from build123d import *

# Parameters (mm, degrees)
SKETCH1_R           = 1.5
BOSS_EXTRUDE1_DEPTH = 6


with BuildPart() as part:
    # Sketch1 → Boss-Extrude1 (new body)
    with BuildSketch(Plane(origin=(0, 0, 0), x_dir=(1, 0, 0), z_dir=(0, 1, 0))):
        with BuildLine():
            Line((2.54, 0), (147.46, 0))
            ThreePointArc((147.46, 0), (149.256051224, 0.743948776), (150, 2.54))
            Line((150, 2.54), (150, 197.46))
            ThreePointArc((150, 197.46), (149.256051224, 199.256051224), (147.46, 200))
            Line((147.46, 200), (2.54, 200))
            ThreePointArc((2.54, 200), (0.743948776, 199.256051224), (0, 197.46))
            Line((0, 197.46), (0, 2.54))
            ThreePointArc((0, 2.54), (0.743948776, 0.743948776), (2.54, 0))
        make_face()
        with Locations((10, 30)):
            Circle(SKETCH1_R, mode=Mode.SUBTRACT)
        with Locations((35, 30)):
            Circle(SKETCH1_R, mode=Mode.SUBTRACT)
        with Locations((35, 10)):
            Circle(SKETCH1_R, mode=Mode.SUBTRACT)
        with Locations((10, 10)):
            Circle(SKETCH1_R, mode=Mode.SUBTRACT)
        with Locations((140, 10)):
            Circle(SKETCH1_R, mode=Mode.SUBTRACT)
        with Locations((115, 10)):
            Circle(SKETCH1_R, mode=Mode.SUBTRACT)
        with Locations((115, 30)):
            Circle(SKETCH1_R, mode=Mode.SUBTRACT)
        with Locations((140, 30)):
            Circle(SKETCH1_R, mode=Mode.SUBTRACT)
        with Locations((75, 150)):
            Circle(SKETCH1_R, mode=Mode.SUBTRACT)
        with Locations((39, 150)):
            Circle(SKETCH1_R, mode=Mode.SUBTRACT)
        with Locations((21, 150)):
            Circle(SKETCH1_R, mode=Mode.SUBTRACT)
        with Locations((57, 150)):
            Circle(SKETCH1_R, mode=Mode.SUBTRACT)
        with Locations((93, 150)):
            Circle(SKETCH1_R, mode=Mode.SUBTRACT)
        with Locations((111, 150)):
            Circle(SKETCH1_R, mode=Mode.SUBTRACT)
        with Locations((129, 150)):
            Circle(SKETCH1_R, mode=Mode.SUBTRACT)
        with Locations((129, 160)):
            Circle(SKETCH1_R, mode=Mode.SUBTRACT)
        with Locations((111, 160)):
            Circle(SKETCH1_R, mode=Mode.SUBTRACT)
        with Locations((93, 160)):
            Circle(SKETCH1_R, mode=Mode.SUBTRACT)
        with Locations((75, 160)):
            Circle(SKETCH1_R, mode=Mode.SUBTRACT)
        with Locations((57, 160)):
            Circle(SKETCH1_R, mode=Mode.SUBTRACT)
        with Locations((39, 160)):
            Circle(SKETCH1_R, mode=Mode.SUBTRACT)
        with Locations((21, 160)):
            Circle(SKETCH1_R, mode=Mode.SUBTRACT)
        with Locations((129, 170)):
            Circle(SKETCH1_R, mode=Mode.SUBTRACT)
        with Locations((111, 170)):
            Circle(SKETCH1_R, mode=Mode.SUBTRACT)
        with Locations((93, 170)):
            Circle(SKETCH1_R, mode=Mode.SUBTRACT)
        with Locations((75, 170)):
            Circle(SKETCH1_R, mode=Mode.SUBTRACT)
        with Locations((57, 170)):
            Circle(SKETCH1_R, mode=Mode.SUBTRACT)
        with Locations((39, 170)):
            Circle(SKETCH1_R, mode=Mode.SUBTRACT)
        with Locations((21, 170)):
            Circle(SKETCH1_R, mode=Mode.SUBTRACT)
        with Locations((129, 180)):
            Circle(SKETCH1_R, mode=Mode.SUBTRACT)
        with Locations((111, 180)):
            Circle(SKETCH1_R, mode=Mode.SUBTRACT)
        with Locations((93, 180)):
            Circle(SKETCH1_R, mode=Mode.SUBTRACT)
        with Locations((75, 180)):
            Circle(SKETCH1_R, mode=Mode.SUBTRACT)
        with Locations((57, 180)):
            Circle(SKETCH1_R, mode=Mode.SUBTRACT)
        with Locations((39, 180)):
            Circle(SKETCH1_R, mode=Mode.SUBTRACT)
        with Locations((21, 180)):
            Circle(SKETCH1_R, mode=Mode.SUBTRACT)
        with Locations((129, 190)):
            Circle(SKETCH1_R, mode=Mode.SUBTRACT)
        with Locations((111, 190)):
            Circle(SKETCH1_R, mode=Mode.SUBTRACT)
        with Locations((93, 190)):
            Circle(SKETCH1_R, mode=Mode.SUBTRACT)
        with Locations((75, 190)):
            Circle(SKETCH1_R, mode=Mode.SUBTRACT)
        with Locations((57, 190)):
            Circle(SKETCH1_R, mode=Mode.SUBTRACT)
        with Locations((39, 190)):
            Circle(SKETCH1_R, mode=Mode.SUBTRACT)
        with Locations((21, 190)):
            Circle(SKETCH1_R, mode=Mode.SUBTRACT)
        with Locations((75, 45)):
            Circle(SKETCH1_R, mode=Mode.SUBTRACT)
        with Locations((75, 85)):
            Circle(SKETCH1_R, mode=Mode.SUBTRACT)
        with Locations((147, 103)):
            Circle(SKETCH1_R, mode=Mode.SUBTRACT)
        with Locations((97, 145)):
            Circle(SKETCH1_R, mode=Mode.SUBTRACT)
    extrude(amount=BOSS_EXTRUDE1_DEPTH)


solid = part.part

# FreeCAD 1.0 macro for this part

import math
import FreeCAD as App
import Part
import Sketcher
Q = App.Units.Quantity

doc = App.newDocument("Part")
body = doc.addObject("PartDesign::Body", "Body")

# Sketch on XZ plane
sketch1 = body.newObject("Sketcher::SketchObject", "Sketch")
sketch1.AttachmentSupport = (doc.getObject("XZ_Plane"), [""])
sketch1.MapMode = "FlatFace"
sketch1.addGeometry(Part.LineSegment(App.Vector(2.5, 0, 0), App.Vector(147.5, 0, 0)), False)
sketch1.addGeometry(Part.ArcOfCircle(Part.Circle(App.Vector(147.5, -2.5, 0), App.Vector(0, 0, 1), 2.5), math.radians(0), math.radians(90)), False)
sketch1.addGeometry(Part.LineSegment(App.Vector(150, -2.5, 0), App.Vector(150, -197.5, 0)), False)
sketch1.addGeometry(Part.ArcOfCircle(Part.Circle(App.Vector(147.5, -197.5, 0), App.Vector(0, 0, 1), 2.5), math.radians(-90), math.radians(0)), False)
sketch1.addGeometry(Part.LineSegment(App.Vector(147.5, -200, 0), App.Vector(2.5, -200, 0)), False)
sketch1.addGeometry(Part.ArcOfCircle(Part.Circle(App.Vector(2.5, -197.5, 0), App.Vector(0, 0, 1), 2.5), math.radians(-180), math.radians(-90)), False)
sketch1.addGeometry(Part.LineSegment(App.Vector(0, -197.5, 0), App.Vector(0, -2.5, 0)), False)
sketch1.addGeometry(Part.ArcOfCircle(Part.Circle(App.Vector(2.5, -2.5, 0), App.Vector(0, 0, 1), 2.5), math.radians(90), math.radians(180)), False)
sketch1.addGeometry(Part.Circle(App.Vector(10, -10, 0), App.Vector(0, 0, 1), 1.5), False)
sketch1.addGeometry(Part.Circle(App.Vector(10, -30, 0), App.Vector(0, 0, 1), 1.5), False)
sketch1.addGeometry(Part.Circle(App.Vector(35, -10, 0), App.Vector(0, 0, 1), 1.5), False)
sketch1.addGeometry(Part.Circle(App.Vector(35, -30, 0), App.Vector(0, 0, 1), 1.5), False)
sketch1.addGeometry(Part.Circle(App.Vector(75, -45, 0), App.Vector(0, 0, 1), 1.5), False)
sketch1.addGeometry(Part.Circle(App.Vector(75, -85, 0), App.Vector(0, 0, 1), 1.5), False)
sketch1.addGeometry(Part.Circle(App.Vector(115, -10, 0), App.Vector(0, 0, 1), 1.5), False)
sketch1.addGeometry(Part.Circle(App.Vector(115, -30, 0), App.Vector(0, 0, 1), 1.5), False)
sketch1.addGeometry(Part.Circle(App.Vector(140, -10, 0), App.Vector(0, 0, 1), 1.5), False)
sketch1.addGeometry(Part.Circle(App.Vector(140, -30, 0), App.Vector(0, 0, 1), 1.5), False)
sketch1.addGeometry(Part.Circle(App.Vector(21, -150, 0), App.Vector(0, 0, 1), 1.5), False)
sketch1.addGeometry(Part.Circle(App.Vector(21, -160, 0), App.Vector(0, 0, 1), 1.5), False)
sketch1.addGeometry(Part.Circle(App.Vector(39, -150, 0), App.Vector(0, 0, 1), 1.5), False)
sketch1.addGeometry(Part.Circle(App.Vector(39, -160, 0), App.Vector(0, 0, 1), 1.5), False)
sketch1.addGeometry(Part.Circle(App.Vector(21, -170, 0), App.Vector(0, 0, 1), 1.5), False)
sketch1.addGeometry(Part.Circle(App.Vector(21, -180, 0), App.Vector(0, 0, 1), 1.5), False)
sketch1.addGeometry(Part.Circle(App.Vector(21, -190, 0), App.Vector(0, 0, 1), 1.5), False)
sketch1.addGeometry(Part.Circle(App.Vector(39, -170, 0), App.Vector(0, 0, 1), 1.5), False)
sketch1.addGeometry(Part.Circle(App.Vector(39, -180, 0), App.Vector(0, 0, 1), 1.5), False)
sketch1.addGeometry(Part.Circle(App.Vector(39, -190, 0), App.Vector(0, 0, 1), 1.5), False)
sketch1.addGeometry(Part.Circle(App.Vector(57, -150, 0), App.Vector(0, 0, 1), 1.5), False)
sketch1.addGeometry(Part.Circle(App.Vector(57, -160, 0), App.Vector(0, 0, 1), 1.5), False)
sketch1.addGeometry(Part.Circle(App.Vector(75, -150, 0), App.Vector(0, 0, 1), 1.5), False)
sketch1.addGeometry(Part.Circle(App.Vector(75, -160, 0), App.Vector(0, 0, 1), 1.5), False)
sketch1.addGeometry(Part.Circle(App.Vector(57, -170, 0), App.Vector(0, 0, 1), 1.5), False)
sketch1.addGeometry(Part.Circle(App.Vector(57, -180, 0), App.Vector(0, 0, 1), 1.5), False)
sketch1.addGeometry(Part.Circle(App.Vector(57, -190, 0), App.Vector(0, 0, 1), 1.5), False)
sketch1.addGeometry(Part.Circle(App.Vector(75, -170, 0), App.Vector(0, 0, 1), 1.5), False)
sketch1.addGeometry(Part.Circle(App.Vector(75, -180, 0), App.Vector(0, 0, 1), 1.5), False)
sketch1.addGeometry(Part.Circle(App.Vector(75, -190, 0), App.Vector(0, 0, 1), 1.5), False)
sketch1.addGeometry(Part.Circle(App.Vector(97, -145, 0), App.Vector(0, 0, 1), 1.5), False)
sketch1.addGeometry(Part.Circle(App.Vector(147, -103, 0), App.Vector(0, 0, 1), 1.5), False)
sketch1.addGeometry(Part.Circle(App.Vector(93, -150, 0), App.Vector(0, 0, 1), 1.5), False)
sketch1.addGeometry(Part.Circle(App.Vector(93, -160, 0), App.Vector(0, 0, 1), 1.5), False)
sketch1.addGeometry(Part.Circle(App.Vector(111, -150, 0), App.Vector(0, 0, 1), 1.5), False)
sketch1.addGeometry(Part.Circle(App.Vector(111, -160, 0), App.Vector(0, 0, 1), 1.5), False)
sketch1.addGeometry(Part.Circle(App.Vector(93, -170, 0), App.Vector(0, 0, 1), 1.5), False)
sketch1.addGeometry(Part.Circle(App.Vector(93, -180, 0), App.Vector(0, 0, 1), 1.5), False)
sketch1.addGeometry(Part.Circle(App.Vector(93, -190, 0), App.Vector(0, 0, 1), 1.5), False)
sketch1.addGeometry(Part.Circle(App.Vector(111, -170, 0), App.Vector(0, 0, 1), 1.5), False)
sketch1.addGeometry(Part.Circle(App.Vector(111, -180, 0), App.Vector(0, 0, 1), 1.5), False)
sketch1.addGeometry(Part.Circle(App.Vector(111, -190, 0), App.Vector(0, 0, 1), 1.5), False)
sketch1.addGeometry(Part.Circle(App.Vector(129, -150, 0), App.Vector(0, 0, 1), 1.5), False)
sketch1.addGeometry(Part.Circle(App.Vector(129, -160, 0), App.Vector(0, 0, 1), 1.5), False)
sketch1.addGeometry(Part.Circle(App.Vector(129, -170, 0), App.Vector(0, 0, 1), 1.5), False)
sketch1.addGeometry(Part.Circle(App.Vector(129, -180, 0), App.Vector(0, 0, 1), 1.5), False)
sketch1.addGeometry(Part.Circle(App.Vector(129, -190, 0), App.Vector(0, 0, 1), 1.5), False)
sketch1.addConstraint(Sketcher.Constraint("Tangent", 0, 2, 1, 2))
sketch1.addConstraint(Sketcher.Constraint("Tangent", 1, 1, 2, 1))
sketch1.addConstraint(Sketcher.Constraint("Tangent", 2, 2, 3, 2))
sketch1.addConstraint(Sketcher.Constraint("Tangent", 3, 1, 4, 1))
sketch1.addConstraint(Sketcher.Constraint("Tangent", 4, 2, 5, 2))
sketch1.addConstraint(Sketcher.Constraint("Tangent", 5, 1, 6, 1))
sketch1.addConstraint(Sketcher.Constraint("Tangent", 6, 2, 7, 2))
sketch1.addConstraint(Sketcher.Constraint("Tangent", 7, 1, 0, 1))
sketch1.addConstraint(Sketcher.Constraint("Horizontal", 0))
sketch1.addConstraint(Sketcher.Constraint("Vertical", 2))
sketch1.addConstraint(Sketcher.Constraint("Horizontal", 4))
sketch1.addConstraint(Sketcher.Constraint("Vertical", 6))
sketch1.addConstraint(Sketcher.Constraint("Equal", 1, 3))
sketch1.addConstraint(Sketcher.Constraint("Equal", 3, 5))
sketch1.addConstraint(Sketcher.Constraint("Equal", 5, 7))
sketch1.addConstraint(Sketcher.Constraint("Equal", 8, 9))
sketch1.addConstraint(Sketcher.Constraint("Equal", 9, 10))
sketch1.addConstraint(Sketcher.Constraint("Equal", 10, 11))
sketch1.addConstraint(Sketcher.Constraint("Equal", 11, 12))
sketch1.addConstraint(Sketcher.Constraint("Equal", 12, 13))
sketch1.addConstraint(Sketcher.Constraint("Equal", 13, 14))
sketch1.addConstraint(Sketcher.Constraint("Equal", 14, 15))
sketch1.addConstraint(Sketcher.Constraint("Equal", 15, 16))
sketch1.addConstraint(Sketcher.Constraint("Equal", 16, 17))
sketch1.addConstraint(Sketcher.Constraint("Equal", 17, 18))
sketch1.addConstraint(Sketcher.Constraint("Equal", 18, 19))
sketch1.addConstraint(Sketcher.Constraint("Equal", 19, 20))
sketch1.addConstraint(Sketcher.Constraint("Equal", 20, 21))
sketch1.addConstraint(Sketcher.Constraint("Equal", 21, 22))
sketch1.addConstraint(Sketcher.Constraint("Equal", 22, 23))
sketch1.addConstraint(Sketcher.Constraint("Equal", 23, 24))
sketch1.addConstraint(Sketcher.Constraint("Equal", 24, 25))
sketch1.addConstraint(Sketcher.Constraint("Equal", 25, 26))
sketch1.addConstraint(Sketcher.Constraint("Equal", 26, 27))
sketch1.addConstraint(Sketcher.Constraint("Equal", 27, 28))
sketch1.addConstraint(Sketcher.Constraint("Equal", 28, 29))
sketch1.addConstraint(Sketcher.Constraint("Equal", 29, 30))
sketch1.addConstraint(Sketcher.Constraint("Equal", 30, 31))
sketch1.addConstraint(Sketcher.Constraint("Equal", 31, 32))
sketch1.addConstraint(Sketcher.Constraint("Equal", 32, 33))
sketch1.addConstraint(Sketcher.Constraint("Equal", 33, 34))
sketch1.addConstraint(Sketcher.Constraint("Equal", 34, 35))
sketch1.addConstraint(Sketcher.Constraint("Equal", 35, 36))
sketch1.addConstraint(Sketcher.Constraint("Equal", 36, 37))
sketch1.addConstraint(Sketcher.Constraint("Equal", 37, 38))
sketch1.addConstraint(Sketcher.Constraint("Equal", 38, 39))
sketch1.addConstraint(Sketcher.Constraint("Equal", 39, 40))
sketch1.addConstraint(Sketcher.Constraint("Equal", 40, 41))
sketch1.addConstraint(Sketcher.Constraint("Equal", 41, 42))
sketch1.addConstraint(Sketcher.Constraint("Equal", 42, 43))
sketch1.addConstraint(Sketcher.Constraint("Equal", 43, 44))
sketch1.addConstraint(Sketcher.Constraint("Equal", 44, 45))
sketch1.addConstraint(Sketcher.Constraint("Equal", 45, 46))
sketch1.addConstraint(Sketcher.Constraint("Equal", 46, 47))
sketch1.addConstraint(Sketcher.Constraint("Equal", 47, 48))
sketch1.addConstraint(Sketcher.Constraint("Equal", 48, 49))
sketch1.addConstraint(Sketcher.Constraint("Equal", 49, 50))
sketch1.addConstraint(Sketcher.Constraint("Equal", 50, 51))
sketch1.addConstraint(Sketcher.Constraint("Equal", 51, 52))
sketch1.addConstraint(Sketcher.Constraint("Equal", 52, 53))
sketch1.addConstraint(Sketcher.Constraint("Equal", 53, 54))
sketch1.addConstraint(Sketcher.Constraint("PointOnObject", 0, 2, -1))
sketch1.addConstraint(Sketcher.Constraint("PointOnObject", 5, 1, -2))
sketch1.addConstraint(Sketcher.Constraint("Horizontal", 8, 3, 10, 3))
sketch1.addConstraint(Sketcher.Constraint("Horizontal", 9, 3, 11, 3))
sketch1.addConstraint(Sketcher.Constraint("Horizontal", 10, 3, 14, 3))
sketch1.addConstraint(Sketcher.Constraint("Horizontal", 11, 3, 15, 3))
sketch1.addConstraint(Sketcher.Constraint("Horizontal", 14, 3, 16, 3))
sketch1.addConstraint(Sketcher.Constraint("Horizontal", 15, 3, 17, 3))
sketch1.addConstraint(Sketcher.Constraint("Horizontal", 18, 3, 20, 3))
sketch1.addConstraint(Sketcher.Constraint("Horizontal", 19, 3, 21, 3))
sketch1.addConstraint(Sketcher.Constraint("Horizontal", 22, 3, 25, 3))
sketch1.addConstraint(Sketcher.Constraint("Horizontal", 23, 3, 26, 3))
sketch1.addConstraint(Sketcher.Constraint("Horizontal", 24, 3, 27, 3))
sketch1.addConstraint(Sketcher.Constraint("Horizontal", 20, 3, 28, 3))
sketch1.addConstraint(Sketcher.Constraint("Horizontal", 21, 3, 29, 3))
sketch1.addConstraint(Sketcher.Constraint("Horizontal", 28, 3, 30, 3))
sketch1.addConstraint(Sketcher.Constraint("Horizontal", 29, 3, 31, 3))
sketch1.addConstraint(Sketcher.Constraint("Horizontal", 25, 3, 32, 3))
sketch1.addConstraint(Sketcher.Constraint("Horizontal", 26, 3, 33, 3))
sketch1.addConstraint(Sketcher.Constraint("Horizontal", 27, 3, 34, 3))
sketch1.addConstraint(Sketcher.Constraint("Horizontal", 32, 3, 35, 3))
sketch1.addConstraint(Sketcher.Constraint("Horizontal", 33, 3, 36, 3))
sketch1.addConstraint(Sketcher.Constraint("Horizontal", 34, 3, 37, 3))
sketch1.addConstraint(Sketcher.Constraint("Horizontal", 30, 3, 40, 3))
sketch1.addConstraint(Sketcher.Constraint("Horizontal", 31, 3, 41, 3))
sketch1.addConstraint(Sketcher.Constraint("Horizontal", 40, 3, 42, 3))
sketch1.addConstraint(Sketcher.Constraint("Horizontal", 41, 3, 43, 3))
sketch1.addConstraint(Sketcher.Constraint("Horizontal", 35, 3, 44, 3))
sketch1.addConstraint(Sketcher.Constraint("Horizontal", 36, 3, 45, 3))
sketch1.addConstraint(Sketcher.Constraint("Horizontal", 37, 3, 46, 3))
sketch1.addConstraint(Sketcher.Constraint("Horizontal", 44, 3, 47, 3))
sketch1.addConstraint(Sketcher.Constraint("Horizontal", 45, 3, 48, 3))
sketch1.addConstraint(Sketcher.Constraint("Horizontal", 46, 3, 49, 3))
sketch1.addConstraint(Sketcher.Constraint("Horizontal", 42, 3, 50, 3))
sketch1.addConstraint(Sketcher.Constraint("Horizontal", 43, 3, 51, 3))
sketch1.addConstraint(Sketcher.Constraint("Horizontal", 47, 3, 52, 3))
sketch1.addConstraint(Sketcher.Constraint("Horizontal", 48, 3, 53, 3))
sketch1.addConstraint(Sketcher.Constraint("Horizontal", 49, 3, 54, 3))
sketch1.addConstraint(Sketcher.Constraint("Vertical", 8, 3, 9, 3))
sketch1.addConstraint(Sketcher.Constraint("Vertical", 10, 3, 11, 3))
sketch1.addConstraint(Sketcher.Constraint("Vertical", 12, 3, 13, 3))
sketch1.addConstraint(Sketcher.Constraint("Vertical", 14, 3, 15, 3))
sketch1.addConstraint(Sketcher.Constraint("Vertical", 16, 3, 17, 3))
sketch1.addConstraint(Sketcher.Constraint("Vertical", 18, 3, 19, 3))
sketch1.addConstraint(Sketcher.Constraint("Vertical", 20, 3, 21, 3))
sketch1.addConstraint(Sketcher.Constraint("Vertical", 19, 3, 22, 3))
sketch1.addConstraint(Sketcher.Constraint("Vertical", 22, 3, 23, 3))
sketch1.addConstraint(Sketcher.Constraint("Vertical", 23, 3, 24, 3))
sketch1.addConstraint(Sketcher.Constraint("Vertical", 21, 3, 25, 3))
sketch1.addConstraint(Sketcher.Constraint("Vertical", 25, 3, 26, 3))
sketch1.addConstraint(Sketcher.Constraint("Vertical", 26, 3, 27, 3))
sketch1.addConstraint(Sketcher.Constraint("Vertical", 28, 3, 29, 3))
sketch1.addConstraint(Sketcher.Constraint("Vertical", 13, 3, 30, 3))
sketch1.addConstraint(Sketcher.Constraint("Vertical", 30, 3, 31, 3))
sketch1.addConstraint(Sketcher.Constraint("Vertical", 29, 3, 32, 3))
sketch1.addConstraint(Sketcher.Constraint("Vertical", 32, 3, 33, 3))
sketch1.addConstraint(Sketcher.Constraint("Vertical", 33, 3, 34, 3))
sketch1.addConstraint(Sketcher.Constraint("Vertical", 31, 3, 35, 3))
sketch1.addConstraint(Sketcher.Constraint("Vertical", 35, 3, 36, 3))
sketch1.addConstraint(Sketcher.Constraint("Vertical", 36, 3, 37, 3))
sketch1.addConstraint(Sketcher.Constraint("Vertical", 40, 3, 41, 3))
sketch1.addConstraint(Sketcher.Constraint("Vertical", 42, 3, 43, 3))
sketch1.addConstraint(Sketcher.Constraint("Vertical", 41, 3, 44, 3))
sketch1.addConstraint(Sketcher.Constraint("Vertical", 44, 3, 45, 3))
sketch1.addConstraint(Sketcher.Constraint("Vertical", 45, 3, 46, 3))
sketch1.addConstraint(Sketcher.Constraint("Vertical", 43, 3, 47, 3))
sketch1.addConstraint(Sketcher.Constraint("Vertical", 47, 3, 48, 3))
sketch1.addConstraint(Sketcher.Constraint("Vertical", 48, 3, 49, 3))
sketch1.addConstraint(Sketcher.Constraint("Vertical", 50, 3, 51, 3))
sketch1.addConstraint(Sketcher.Constraint("Vertical", 51, 3, 52, 3))
sketch1.addConstraint(Sketcher.Constraint("Vertical", 52, 3, 53, 3))
sketch1.addConstraint(Sketcher.Constraint("Vertical", 53, 3, 54, 3))
sketch1.addConstraint(Sketcher.Constraint("Diameter", 8, Q("3 mm")))
sketch1.addConstraint(Sketcher.Constraint("Radius", 1, Q("2.54 mm")))
sketch1.addConstraint(Sketcher.Constraint("DistanceX", -1, 1, 8, 3, Q("10 mm")))
sketch1.addConstraint(Sketcher.Constraint("DistanceY", 8, 3, -1, 1, Q("10 mm")))
sketch1.addConstraint(Sketcher.Constraint("DistanceY", 9, 3, -1, 1, Q("30 mm")))
sketch1.addConstraint(Sketcher.Constraint("DistanceX", -1, 1, 10, 3, Q("35 mm")))
sketch1.addConstraint(Sketcher.Constraint("DistanceX", -1, 1, 12, 3, Q("75 mm")))
sketch1.addConstraint(Sketcher.Constraint("DistanceY", 12, 3, -1, 1, Q("45 mm")))
sketch1.addConstraint(Sketcher.Constraint("DistanceY", 13, 3, -1, 1, Q("85 mm")))
sketch1.addConstraint(Sketcher.Constraint("DistanceX", -1, 1, 14, 3, Q("115 mm")))
sketch1.addConstraint(Sketcher.Constraint("DistanceX", -1, 1, 16, 3, Q("140 mm")))
sketch1.addConstraint(Sketcher.Constraint("DistanceX", -1, 1, 18, 3, Q("21 mm")))
sketch1.addConstraint(Sketcher.Constraint("DistanceY", 18, 3, -1, 1, Q("150 mm")))
sketch1.addConstraint(Sketcher.Constraint("DistanceY", 19, 3, -1, 1, Q("160 mm")))
sketch1.addConstraint(Sketcher.Constraint("DistanceX", -1, 1, 20, 3, Q("39 mm")))
sketch1.addConstraint(Sketcher.Constraint("DistanceY", 22, 3, -1, 1, Q("170 mm")))
sketch1.addConstraint(Sketcher.Constraint("DistanceY", 23, 3, -1, 1, Q("180 mm")))
sketch1.addConstraint(Sketcher.Constraint("DistanceY", 24, 3, -1, 1, Q("190 mm")))
sketch1.addConstraint(Sketcher.Constraint("DistanceX", -1, 1, 28, 3, Q("57 mm")))
sketch1.addConstraint(Sketcher.Constraint("DistanceX", -1, 1, 38, 3, Q("97 mm")))
sketch1.addConstraint(Sketcher.Constraint("DistanceY", 38, 3, -1, 1, Q("145 mm")))
sketch1.addConstraint(Sketcher.Constraint("DistanceX", -1, 1, 39, 3, Q("147 mm")))
sketch1.addConstraint(Sketcher.Constraint("DistanceY", 39, 3, -1, 1, Q("103 mm")))
sketch1.addConstraint(Sketcher.Constraint("DistanceX", -1, 1, 40, 3, Q("93 mm")))
sketch1.addConstraint(Sketcher.Constraint("DistanceX", -1, 1, 42, 3, Q("111 mm")))
sketch1.addConstraint(Sketcher.Constraint("DistanceX", -1, 1, 50, 3, Q("129 mm")))
sketch1.addConstraint(Sketcher.Constraint("DistanceX", -1, 1, 1, 1, Q("150 mm")))
sketch1.addConstraint(Sketcher.Constraint("DistanceY", 3, 1, -1, 1, Q("200 mm")))
pad1 = body.newObject("PartDesign::Pad", "Pad")
pad1.Profile = sketch1
pad1.Length = 6
pad1.Reversed = True

doc.recompute()
